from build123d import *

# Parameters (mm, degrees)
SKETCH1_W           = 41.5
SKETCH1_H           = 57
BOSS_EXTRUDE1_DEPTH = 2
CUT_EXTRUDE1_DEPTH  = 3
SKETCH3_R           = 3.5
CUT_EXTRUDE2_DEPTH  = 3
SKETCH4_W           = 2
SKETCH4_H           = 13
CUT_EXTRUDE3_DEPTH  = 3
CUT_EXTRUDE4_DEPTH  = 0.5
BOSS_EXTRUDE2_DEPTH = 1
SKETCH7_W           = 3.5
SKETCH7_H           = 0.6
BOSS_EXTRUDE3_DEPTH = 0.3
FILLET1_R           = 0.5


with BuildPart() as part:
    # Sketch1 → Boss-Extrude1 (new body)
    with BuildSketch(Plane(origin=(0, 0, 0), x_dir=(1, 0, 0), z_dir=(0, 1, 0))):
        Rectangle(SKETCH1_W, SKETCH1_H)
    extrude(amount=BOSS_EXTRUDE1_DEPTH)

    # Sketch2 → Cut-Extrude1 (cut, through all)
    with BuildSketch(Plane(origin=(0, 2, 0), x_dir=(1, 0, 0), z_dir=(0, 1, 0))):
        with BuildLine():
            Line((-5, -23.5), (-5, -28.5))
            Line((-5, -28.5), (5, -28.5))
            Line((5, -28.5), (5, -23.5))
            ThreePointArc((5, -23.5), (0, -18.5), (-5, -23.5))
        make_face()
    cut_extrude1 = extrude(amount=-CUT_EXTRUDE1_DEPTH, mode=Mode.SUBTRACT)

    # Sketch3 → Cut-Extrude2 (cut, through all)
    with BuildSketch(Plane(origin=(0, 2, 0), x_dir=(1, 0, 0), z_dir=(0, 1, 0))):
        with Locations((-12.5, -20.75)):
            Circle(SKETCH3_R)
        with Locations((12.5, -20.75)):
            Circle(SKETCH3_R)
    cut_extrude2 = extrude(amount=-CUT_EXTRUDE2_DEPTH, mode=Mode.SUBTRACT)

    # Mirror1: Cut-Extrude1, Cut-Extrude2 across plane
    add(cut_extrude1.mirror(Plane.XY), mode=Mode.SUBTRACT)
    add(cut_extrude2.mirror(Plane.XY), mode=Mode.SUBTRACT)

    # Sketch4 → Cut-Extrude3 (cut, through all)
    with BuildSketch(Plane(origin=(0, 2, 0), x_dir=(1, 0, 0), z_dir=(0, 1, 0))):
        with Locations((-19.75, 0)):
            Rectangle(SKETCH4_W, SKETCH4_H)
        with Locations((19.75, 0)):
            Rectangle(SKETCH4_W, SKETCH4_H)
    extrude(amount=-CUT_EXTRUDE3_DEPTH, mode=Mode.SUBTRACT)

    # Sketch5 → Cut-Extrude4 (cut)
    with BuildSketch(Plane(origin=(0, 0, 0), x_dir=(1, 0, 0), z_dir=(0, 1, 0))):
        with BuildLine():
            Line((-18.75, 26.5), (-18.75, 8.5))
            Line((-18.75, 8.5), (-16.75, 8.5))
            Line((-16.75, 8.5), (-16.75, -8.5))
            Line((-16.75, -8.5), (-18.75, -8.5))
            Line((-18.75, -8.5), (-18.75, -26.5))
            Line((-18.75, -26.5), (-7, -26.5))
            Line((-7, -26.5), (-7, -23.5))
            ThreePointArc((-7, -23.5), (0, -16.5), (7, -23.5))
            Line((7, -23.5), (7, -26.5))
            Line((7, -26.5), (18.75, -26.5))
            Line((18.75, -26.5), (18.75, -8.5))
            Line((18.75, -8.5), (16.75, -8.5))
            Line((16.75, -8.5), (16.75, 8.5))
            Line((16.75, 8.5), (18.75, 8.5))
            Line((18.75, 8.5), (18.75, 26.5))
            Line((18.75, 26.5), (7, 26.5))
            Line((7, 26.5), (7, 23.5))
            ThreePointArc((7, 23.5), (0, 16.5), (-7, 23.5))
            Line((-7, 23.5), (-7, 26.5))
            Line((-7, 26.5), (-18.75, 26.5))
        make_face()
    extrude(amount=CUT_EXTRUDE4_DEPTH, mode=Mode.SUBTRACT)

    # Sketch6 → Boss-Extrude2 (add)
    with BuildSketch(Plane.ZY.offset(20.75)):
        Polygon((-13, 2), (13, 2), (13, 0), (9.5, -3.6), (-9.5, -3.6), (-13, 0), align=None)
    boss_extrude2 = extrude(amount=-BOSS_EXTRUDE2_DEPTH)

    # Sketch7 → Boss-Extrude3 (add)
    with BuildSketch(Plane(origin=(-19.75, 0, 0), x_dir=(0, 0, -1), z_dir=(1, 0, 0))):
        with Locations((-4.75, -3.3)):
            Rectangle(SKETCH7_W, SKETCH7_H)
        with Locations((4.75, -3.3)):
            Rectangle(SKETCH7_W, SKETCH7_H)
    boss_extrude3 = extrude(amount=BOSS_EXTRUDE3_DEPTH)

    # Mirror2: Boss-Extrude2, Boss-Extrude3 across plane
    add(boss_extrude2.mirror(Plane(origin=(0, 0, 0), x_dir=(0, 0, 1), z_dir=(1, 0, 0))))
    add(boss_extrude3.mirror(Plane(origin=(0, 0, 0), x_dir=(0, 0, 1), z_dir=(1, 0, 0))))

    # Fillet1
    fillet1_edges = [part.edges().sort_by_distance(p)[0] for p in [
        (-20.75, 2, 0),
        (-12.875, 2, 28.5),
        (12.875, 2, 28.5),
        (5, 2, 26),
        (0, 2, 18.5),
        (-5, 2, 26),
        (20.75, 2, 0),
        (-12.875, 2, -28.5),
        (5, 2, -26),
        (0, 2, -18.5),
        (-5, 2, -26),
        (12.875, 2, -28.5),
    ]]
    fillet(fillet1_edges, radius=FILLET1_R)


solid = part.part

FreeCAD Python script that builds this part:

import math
import FreeCAD as App
import Part
import Sketcher
from FreeCAD import Vector


def edges_at(feature, points):
    """Names of the edges that pass closest to the given points."""
    edges = feature.Shape.Edges
    near = lambda p: min(range(len(edges)), key=lambda i: edges[i].distToShape(Part.Vertex(*p))[0])
    return sorted({f"Edge{near(p) + 1}" for p in points})

doc = App.newDocument("Part")
params = doc.addObject("Spreadsheet::Sheet", "Params")
for row, (alias, value) in enumerate([
    ("sketch1_height", "57 mm"),
    ("sketch1_width", "41.5 mm"),
    ("pad1_length", "2 mm"),
    ("sketch2_radius", "5 mm"),
    ("sketch2_height", "5 mm"),
    ("sketch3_diameter", "7 mm"),
    ("sketch4_width", "2 mm"),
    ("sketch4_height", "13 mm"),
    ("sketch5_radius", "7 mm"),
    ("sketch5_width", "2 mm"),
    ("sketch5_height", "18 mm"),
    ("sketch5_height2", "17 mm"),
    ("sketch5_height3", "3 mm"),
    ("pocket4_length", "0.5 mm"),
    ("sketch6_width", "2 mm"),
    ("sketch6_height", "26 mm"),
    ("sketch6_height2", "19 mm"),
    ("pad2_length", "1 mm"),
    ("sketch7_width", "0.6 mm"),
    ("sketch7_height", "3.5 mm"),
    ("pad3_length", "0.3 mm"),
    ("fillet_radius", "0.5 mm"),
], start=1):
    params.set(f"A{row}", alias)
    params.set(f"B{row}", "=" + value)
    params.setAlias(f"B{row}", alias)

body = doc.addObject("PartDesign::Body", "Body")

# Sketch on XZ plane
sketch1 = doc.addObject("Sketcher::SketchObject", "Sketch")
body.addObject(sketch1)
sketch1.AttachmentSupport = (doc.XZ_Plane, [""])
sketch1.MapMode = "FlatFace"
sketch1.addGeometry(Part.LineSegment(Vector(-21, -28, 0), Vector(-21, 28, 0)), False)
sketch1.addGeometry(Part.LineSegment(Vector(-21, 28, 0), Vector(21, 28, 0)), False)
sketch1.addGeometry(Part.LineSegment(Vector(21, 28, 0), Vector(21, -28, 0)), False)
sketch1.addGeometry(Part.LineSegment(Vector(21, -28, 0), Vector(-21, -28, 0)), False)
sketch1.addConstraint(Sketcher.Constraint("Coincident", 0, 2, 1, 1))
sketch1.addConstraint(Sketcher.Constraint("Coincident", 1, 2, 2, 1))
sketch1.addConstraint(Sketcher.Constraint("Coincident", 2, 2, 3, 1))
sketch1.addConstraint(Sketcher.Constraint("Coincident", 3, 2, 0, 1))
sketch1.addConstraint(Sketcher.Constraint("Vertical", 0))
sketch1.addConstraint(Sketcher.Constraint("Horizontal", 1))
sketch1.addConstraint(Sketcher.Constraint("Vertical", 2))
sketch1.addConstraint(Sketcher.Constraint("Horizontal", 3))
sketch1.addConstraint(Sketcher.Constraint("Symmetric", 0, 2, 2, 2, -1, 1))
sketch1.addConstraint(Sketcher.Constraint("DistanceY", 0, 1, 0, 2, 57.0))
sketch1.addConstraint(Sketcher.Constraint("DistanceX", 1, 1, 1, 2, 41.5))
sketch1.setExpression("Constraints[9]", "Params.sketch1_height")
sketch1.setExpression("Constraints[10]", "Params.sketch1_width")
pad1 = doc.addObject("PartDesign::Pad", "Pad")
body.addObject(pad1)
pad1.Profile = sketch1
pad1.setExpression("Length", "Params.pad1_length")
pad1.Reversed = True

# Sketch on XZ plane
sketch2 = doc.addObject("Sketcher::SketchObject", "Sketch001")
body.addObject(sketch2)
sketch2.AttachmentSupport = (doc.XZ_Plane, [""])
sketch2.MapMode = "FlatFace"
sketch2.AttachmentOffset = App.Placement(Vector(0, 0, -2), App.Rotation())
sketch2.addGeometry(Part.LineSegment(Vector(-5, 24, 0), Vector(-5, 28, 0)), False)
sketch2.addGeometry(Part.LineSegment(Vector(-5, 28, 0), Vector(5, 28, 0)), False)
sketch2.addGeometry(Part.LineSegment(Vector(5, 28, 0), Vector(5, 24, 0)), False)
sketch2.addGeometry(Part.ArcOfCircle(Part.Circle(Vector(0, 24, 0), Vector(0, 0, 1), 5), math.radians(180), math.radians(360)), False)
sketch2.addConstraint(Sketcher.Constraint("Coincident", 0, 2, 1, 1))
sketch2.addConstraint(Sketcher.Constraint("Coincident", 1, 2, 2, 1))
sketch2.addConstraint(Sketcher.Constraint("Tangent", 2, 2, 3, 2))
sketch2.addConstraint(Sketcher.Constraint("Tangent", 3, 1, 0, 1))
sketch2.addConstraint(Sketcher.Constraint("Vertical", 0))
sketch2.addConstraint(Sketcher.Constraint("Horizontal", 1))
sketch2.addConstraint(Sketcher.Constraint("Vertical", 2))
sketch2.addConstraint(Sketcher.Constraint("PointOnObject", 3, 3, -2))
sketch2.addConstraint(Sketcher.Constraint("Radius", 3, 5.0))
sketch2.addConstraint(Sketcher.Constraint("DistanceY", 0, 1, 0, 2, 5.0))
sketch2.addConstraint(Sketcher.Constraint("DistanceY", -1, 1, 3, 3, 23.5))
sketch2.setExpression("Constraints[8]", "Params.sketch2_radius")
sketch2.setExpression("Constraints[9]", "Params.sketch2_height")
pocket1 = doc.addObject("PartDesign::Pocket", "Pocket")
body.addObject(pocket1)
pocket1.Profile = sketch2
pocket1.Type = "ThroughAll"
pocket1.Reversed = True

# Sketch on XZ plane
sketch3 = doc.addObject("Sketcher::SketchObject", "Sketch002")
body.addObject(sketch3)
sketch3.AttachmentSupport = (doc.XZ_Plane, [""])
sketch3.MapMode = "FlatFace"
sketch3.AttachmentOffset = App.Placement(Vector(0, 0, -2), App.Rotation())
sketch3.addGeometry(Part.Circle(Vector(-12.5, 20.8, 0), Vector(0, 0, 1), 3.5), False)
sketch3.addGeometry(Part.Circle(Vector(12.5, 20.8, 0), Vector(0, 0, 1), 3.5), False)
sketch3.addConstraint(Sketcher.Constraint("Equal", 0, 1))
sketch3.addConstraint(Sketcher.Constraint("Symmetric", 0, 3, 1, 3, -2))
sketch3.addConstraint(Sketcher.Constraint("Diameter", 0, 7.0))
sketch3.addConstraint(Sketcher.Constraint("DistanceX", 0, 3, 1, 3, 25.0))
sketch3.addConstraint(Sketcher.Constraint("DistanceY", -1, 1, 0, 3, 20.75))
sketch3.setExpression("Constraints[2]", "Params.sketch3_diameter")
pocket2 = doc.addObject("PartDesign::Pocket", "Pocket001")
body.addObject(pocket2)
pocket2.Profile = sketch3
pocket2.Type = "ThroughAll"
pocket2.Reversed = True
doc.recompute()

mirrored = doc.addObject("PartDesign::Mirrored", "Mirrored")
body.addObject(mirrored)
mirrored.Originals = [pocket1, pocket2]
mirrored.MirrorPlane = (doc.XY_Plane, [""])
body.Tip = mirrored

# Sketch on XZ plane
sketch4 = doc.addObject("Sketcher::SketchObject", "Sketch003")
body.addObject(sketch4)
sketch4.AttachmentSupport = (doc.XZ_Plane, [""])
sketch4.MapMode = "FlatFace"
sketch4.AttachmentOffset = App.Placement(Vector(0, 0, -2), App.Rotation())
sketch4.addGeometry(Part.LineSegment(Vector(-20.8, -6.5, 0), Vector(-20.8, 6.5, 0)), False)
sketch4.addGeometry(Part.LineSegment(Vector(-20.8, 6.5, 0), Vector(-18.8, 6.5, 0)), False)
sketch4.addGeometry(Part.LineSegment(Vector(-18.8, 6.5, 0), Vector(-18.8, -6.5, 0)), False)
sketch4.addGeometry(Part.LineSegment(Vector(-18.8, -6.5, 0), Vector(-20.8, -6.5, 0)), False)
sketch4.addGeometry(Part.LineSegment(Vector(18.8, -6.5, 0), Vector(18.8, 6.5, 0)), False)
sketch4.addGeometry(Part.LineSegment(Vector(18.8, 6.5, 0), Vector(20.8, 6.5, 0)), False)
sketch4.addGeometry(Part.LineSegment(Vector(20.8, 6.5, 0), Vector(20.8, -6.5, 0)), False)
sketch4.addGeometry(Part.LineSegment(Vector(20.8, -6.5, 0), Vector(18.8, -6.5, 0)), False)
sketch4.addConstraint(Sketcher.Constraint("Coincident", 0, 2, 1, 1))
sketch4.addConstraint(Sketcher.Constraint("Coincident", 1, 2, 2, 1))
sketch4.addConstraint(Sketcher.Constraint("Coincident", 2, 2, 3, 1))
sketch4.addConstraint(Sketcher.Constraint("Coincident", 3, 2, 0, 1))
sketch4.addConstraint(Sketcher.Constraint("Coincident", 4, 2, 5, 1))
sketch4.addConstraint(Sketcher.Constraint("Coincident", 5, 2, 6, 1))
sketch4.addConstraint(Sketcher.Constraint("Coincident", 6, 2, 7, 1))
sketch4.addConstraint(Sketcher.Constraint("Coincident", 7, 2, 4, 1))
sketch4.addConstraint(Sketcher.Constraint("Vertical", 0))
sketch4.addConstraint(Sketcher.Constraint("Horizontal", 1))
sketch4.addConstraint(Sketcher.Constraint("Vertical", 2))
sketch4.addConstraint(Sketcher.Constraint("Horizontal", 3))
sketch4.addConstraint(Sketcher.Constraint("Vertical", 4))
sketch4.addConstraint(Sketcher.Constraint("Horizontal", 5))
sketch4.addConstraint(Sketcher.Constraint("Vertical", 6))
sketch4.addConstraint(Sketcher.Constraint("Horizontal", 7))
sketch4.addConstraint(Sketcher.Constraint("Symmetric", 2, 2, 4, 2, -1, 1))
sketch4.addConstraint(Sketcher.Constraint("Symmetric", 0, 2, 6, 2, -1, 1))
sketch4.addConstraint(Sketcher.Constraint("Horizontal", 1, 2, 4, 2))
sketch4.addConstraint(Sketcher.Constraint("DistanceX", 1, 1, 1, 2, 2.0))
sketch4.addConstraint(Sketcher.Constraint("DistanceY", 0, 1, 0, 2, 13.0))
sketch4.addConstraint(Sketcher.Constraint("DistanceX", 1, 2, 4, 2, 37.5))
sketch4.setExpression("Constraints[19]", "Params.sketch4_width")
sketch4.setExpression("Constraints[20]", "Params.sketch4_height")
pocket3 = doc.addObject("PartDesign::Pocket", "Pocket002")
body.addObject(pocket3)
pocket3.Profile = sketch4
pocket3.Type = "ThroughAll"
pocket3.Reversed = True

# Sketch on XZ plane
sketch5 = doc.addObject("Sketcher::SketchObject", "Sketch004")
body.addObject(sketch5)
sketch5.AttachmentSupport = (doc.XZ_Plane, [""])
sketch5.MapMode = "FlatFace"
sketch5.addGeometry(Part.LineSegment(Vector(-18.8, -26.5, 0), Vector(-18.8, -8.5, 0)), False)
sketch5.addGeometry(Part.LineSegment(Vector(-18.8, -8.5, 0), Vector(-16.8, -8.5, 0)), False)
sketch5.addGeometry(Part.LineSegment(Vector(-16.8, -8.5, 0), Vector(-16.8, 8.5, 0)), False)
sketch5.addGeometry(Part.LineSegment(Vector(-16.8, 8.5, 0), Vector(-18.8, 8.5, 0)), False)
sketch5.addGeometry(Part.LineSegment(Vector(-18.8, 8.5, 0), Vector(-18.8, 26.5, 0)), False)
sketch5.addGeometry(Part.LineSegment(Vector(-18.8, 26.5, 0), Vector(-7, 26.5, 0)), False)
sketch5.addGeometry(Part.LineSegment(Vector(-7, 26.5, 0), Vector(-7, 23.5, 0)), False)
sketch5.addGeometry(Part.ArcOfCircle(Part.Circle(Vector(0, 23.5, 0), Vector(0, 0, 1), 7), math.radians(180), math.radians(360)), False)
sketch5.addGeometry(Part.LineSegment(Vector(7, 23.5, 0), Vector(7, 26.5, 0)), False)
sketch5.addGeometry(Part.LineSegment(Vector(7, 26.5, 0), Vector(18.8, 26.5, 0)), False)
sketch5.addGeometry(Part.LineSegment(Vector(18.8, 26.5, 0), Vector(18.8, 8.5, 0)), False)
sketch5.addGeometry(Part.LineSegment(Vector(18.8, 8.5, 0), Vector(16.8, 8.5, 0)), False)
sketch5.addGeometry(Part.LineSegment(Vector(16.8, 8.5, 0), Vector(16.8, -8.5, 0)), False)
sketch5.addGeometry(Part.LineSegment(Vector(16.8, -8.5, 0), Vector(18.8, -8.5, 0)), False)
sketch5.addGeometry(Part.LineSegment(Vector(18.8, -8.5, 0), Vector(18.8, -26.5, 0)), False)
sketch5.addGeometry(Part.LineSegment(Vector(18.8, -26.5, 0), Vector(7, -26.5, 0)), False)
sketch5.addGeometry(Part.LineSegment(Vector(7, -26.5, 0), Vector(7, -23.5, 0)), False)
sketch5.addGeometry(Part.ArcOfCircle(Part.Circle(Vector(0, -23.5, 0), Vector(0, 0, 1), 7), math.radians(0), math.radians(180)), False)
sketch5.addGeometry(Part.LineSegment(Vector(-7, -23.5, 0), Vector(-7, -26.5, 0)), False)
sketch5.addGeometry(Part.LineSegment(Vector(-7, -26.5, 0), Vector(-18.8, -26.5, 0)), False)
sketch5.addConstraint(Sketcher.Constraint("Coincident", 0, 2, 1, 1))
sketch5.addConstraint(Sketcher.Constraint("Coincident", 1, 2, 2, 1))
sketch5.addConstraint(Sketcher.Constraint("Coincident", 2, 2, 3, 1))
sketch5.addConstraint(Sketcher.Constraint("Coincident", 3, 2, 4, 1))
sketch5.addConstraint(Sketcher.Constraint("Coincident", 4, 2, 5, 1))
sketch5.addConstraint(Sketcher.Constraint("Coincident", 5, 2, 6, 1))
sketch5.addConstraint(Sketcher.Constraint("Tangent", 6, 2, 7, 1))
sketch5.addConstraint(Sketcher.Constraint("Tangent", 7, 2, 8, 1))
sketch5.addConstraint(Sketcher.Constraint("Coincident", 8, 2, 9, 1))
sketch5.addConstraint(Sketcher.Constraint("Coincident", 9, 2, 10, 1))
sketch5.addConstraint(Sketcher.Constraint("Coincident", 10, 2, 11, 1))
sketch5.addConstraint(Sketcher.Constraint("Coincident", 11, 2, 12, 1))
sketch5.addConstraint(Sketcher.Constraint("Coincident", 12, 2, 13, 1))
sketch5.addConstraint(Sketcher.Constraint("Coincident", 13, 2, 14, 1))
sketch5.addConstraint(Sketcher.Constraint("Coincident", 14, 2, 15, 1))
sketch5.addConstraint(Sketcher.Constraint("Coincident", 15, 2, 16, 1))
sketch5.addConstraint(Sketcher.Constraint("Tangent", 16, 2, 17, 1))
sketch5.addConstraint(Sketcher.Constraint("Tangent", 17, 2, 18, 1))
sketch5.addConstraint(Sketcher.Constraint("Coincident", 18, 2, 19, 1))
sketch5.addConstraint(Sketcher.Constraint("Coincident", 19, 2, 0, 1))
sketch5.addConstraint(Sketcher.Constraint("Vertical", 0))
sketch5.addConstraint(Sketcher.Constraint("Horizontal", 1))
sketch5.addConstraint(Sketcher.Constraint("Vertical", 2))
sketch5.addConstraint(Sketcher.Constraint("Horizontal", 3))
sketch5.addConstraint(Sketcher.Constraint("Vertical", 4))
sketch5.addConstraint(Sketcher.Constraint("Horizontal", 5))
sketch5.addConstraint(Sketcher.Constraint("Vertical", 6))
sketch5.addConstraint(Sketcher.Constraint("Vertical", 8))
sketch5.addConstraint(Sketcher.Constraint("Horizontal", 9))
sketch5.addConstraint(Sketcher.Constraint("Vertical", 10))
sketch5.addConstraint(Sketcher.Constraint("Horizontal", 11))
sketch5.addConstraint(Sketcher.Constraint("Vertical", 12))
sketch5.addConstraint(Sketcher.Constraint("Horizontal", 13))
sketch5.addConstraint(Sketcher.Constraint("Vertical", 14))
sketch5.addConstraint(Sketcher.Constraint("Horizontal", 15))
sketch5.addConstraint(Sketcher.Constraint("Vertical", 16))
sketch5.addConstraint(Sketcher.Constraint("Vertical", 18))
sketch5.addConstraint(Sketcher.Constraint("Horizontal", 19))
sketch5.addConstraint(Sketcher.Constraint("Equal", 7, 17))
sketch5.addConstraint(Sketcher.Constraint("Symmetric", 7, 3, 17, 3, -1, 1))
sketch5.addConstraint(Sketcher.Constraint("Symmetric", 0, 2, 10, 2, -1, 1))
sketch5.addConstraint(Sketcher.Constraint("Symmetric", 2, 2, 12, 2, -1, 1))
sketch5.addConstraint(Sketcher.Constraint("Symmetric", 4, 2, 14, 2, -1, 1))
sketch5.addConstraint(Sketcher.Constraint("Symmetric", 5, 2, 8, 2, -2))
sketch5.addConstraint(Sketcher.Constraint("Symmetric", 3, 2, 10, 2, -2))
sketch5.addConstraint(Sketcher.Constraint("Horizontal", 15, 2, 18, 2))
sketch5.addConstraint(Sketcher.Constraint("Radius", 7, 7.0))
sketch5.addConstraint(Sketcher.Constraint("DistanceX", 1, 1, 1, 2, 2.0))
sketch5.addConstraint(Sketcher.Constraint("DistanceY", 0, 1, 0, 2, 18.0))
sketch5.addConstraint(Sketcher.Constraint("DistanceY", 2, 1, 2, 2, 17.0))
sketch5.addConstraint(Sketcher.Constraint("DistanceY", 6, 2, 6, 1, 3.0))
sketch5.addConstraint(Sketcher.Constraint("DistanceX", 5, 1, 5, 2, 11.75))
sketch5.setExpression("Constraints[46]", "Params.sketch5_radius")
sketch5.setExpression("Constraints[47]", "Params.sketch5_width")
sketch5.setExpression("Constraints[48]", "Params.sketch5_height")
sketch5.setExpression("Constraints[49]", "Params.sketch5_height2")
sketch5.setExpression("Constraints[50]", "Params.sketch5_height3")
pocket4 = doc.addObject("PartDesign::Pocket", "Pocket003")
body.addObject(pocket4)
pocket4.Profile = sketch5
pocket4.setExpression("Length", "Params.pocket4_length")

# Sketch on YZ plane
sketch6 = doc.addObject("Sketcher::SketchObject", "Sketch005")
body.addObject(sketch6)
sketch6.AttachmentSupport = (doc.YZ_Plane, [""])
sketch6.MapMode = "FlatFace"
sketch6.AttachmentOffset = App.Placement(Vector(0, 0, -20.75), App.Rotation())
sketch6.addGeometry(Part.LineSegment(Vector(2, 13, 0), Vector(2, -13, 0)), False)
sketch6.addGeometry(Part.LineSegment(Vector(2, -13, 0), Vector(0, -13, 0)), False)
sketch6.addGeometry(Part.LineSegment(Vector(0, -13, 0), Vector(-3.6, -9.5, 0)), False)
sketch6.addGeometry(Part.LineSegment(Vector(-3.6, -9.5, 0), Vector(-3.6, 9.5, 0)), False)
sketch6.addGeometry(Part.LineSegment(Vector(-3.6, 9.5, 0), Vector(0, 13, 0)), False)
sketch6.addGeometry(Part.LineSegment(Vector(0, 13, 0), Vector(2, 13, 0)), False)
sketch6.addConstraint(Sketcher.Constraint("Coincident", 0, 2, 1, 1))
sketch6.addConstraint(Sketcher.Constraint("Coincident", 1, 2, 2, 1))
sketch6.addConstraint(Sketcher.Constraint("Coincident", 2, 2, 3, 1))
sketch6.addConstraint(Sketcher.Constraint("Coincident", 3, 2, 4, 1))
sketch6.addConstraint(Sketcher.Constraint("Coincident", 4, 2, 5, 1))
sketch6.addConstraint(Sketcher.Constraint("Coincident", 5, 2, 0, 1))
sketch6.addConstraint(Sketcher.Constraint("Vertical", 0))
sketch6.addConstraint(Sketcher.Constraint("Horizontal", 1))
sketch6.addConstraint(Sketcher.Constraint("Vertical", 3))
sketch6.addConstraint(Sketcher.Constraint("Horizontal", 5))
sketch6.addConstraint(Sketcher.Constraint("Symmetric", 1, 2, 4, 2, -1, 1))
sketch6.addConstraint(Sketcher.Constraint("PointOnObject", 1, 2, -2))
sketch6.addConstraint(Sketcher.Constraint("Equal", 2, 4))
sketch6.addConstraint(Sketcher.Constraint("DistanceX", 1, 2, 1, 1, 2.0))
sketch6.addConstraint(Sketcher.Constraint("DistanceY", 0, 2, 0, 1, 26.0))
sketch6.addConstraint(Sketcher.Constraint("DistanceY", 3, 1, 3, 2, 19.0))
sketch6.addConstraint(Sketcher.Constraint("DistanceX", 2, 2, -1, 1, 3.6))
sketch6.setExpression("Constraints[13]", "Params.sketch6_width")
sketch6.setExpression("Constraints[14]", "Params.sketch6_height")
sketch6.setExpression("Constraints[15]", "Params.sketch6_height2")
pad2 = doc.addObject("PartDesign::Pad", "Pad001")
body.addObject(pad2)
pad2.Profile = sketch6
pad2.setExpression("Length", "Params.pad2_length")

# Sketch on YZ plane
sketch7 = doc.addObject("Sketcher::SketchObject", "Sketch006")
body.addObject(sketch7)
sketch7.AttachmentSupport = (doc.YZ_Plane, [""])
sketch7.MapMode = "FlatFace"
sketch7.AttachmentOffset = App.Placement(Vector(0, 0, -19.75), App.Rotation())
sketch7.addGeometry(Part.LineSegment(Vector(-3, 6.5, 0), Vector(-3.6, 6.5, 0)), False)
sketch7.addGeometry(Part.LineSegment(Vector(-3.6, 6.5, 0), Vector(-3.6, 3, 0)), False)
sketch7.addGeometry(Part.LineSegment(Vector(-3.6, 3, 0), Vector(-3, 3, 0)), False)
sketch7.addGeometry(Part.LineSegment(Vector(-3, 3, 0), Vector(-3, 6.5, 0)), False)
sketch7.addGeometry(Part.LineSegment(Vector(-3, -3, 0), Vector(-3.6, -3, 0)), False)
sketch7.addGeometry(Part.LineSegment(Vector(-3.6, -3, 0), Vector(-3.6, -6.5, 0)), False)
sketch7.addGeometry(Part.LineSegment(Vector(-3.6, -6.5, 0), Vector(-3, -6.5, 0)), False)
sketch7.addGeometry(Part.LineSegment(Vector(-3, -6.5, 0), Vector(-3, -3, 0)), False)
sketch7.addConstraint(Sketcher.Constraint("Coincident", 0, 2, 1, 1))
sketch7.addConstraint(Sketcher.Constraint("Coincident", 1, 2, 2, 1))
sketch7.addConstraint(Sketcher.Constraint("Coincident", 2, 2, 3, 1))
sketch7.addConstraint(Sketcher.Constraint("Coincident", 3, 2, 0, 1))
sketch7.addConstraint(Sketcher.Constraint("Coincident", 4, 2, 5, 1))
sketch7.addConstraint(Sketcher.Constraint("Coincident", 5, 2, 6, 1))
sketch7.addConstraint(Sketcher.Constraint("Coincident", 6, 2, 7, 1))
sketch7.addConstraint(Sketcher.Constraint("Coincident", 7, 2, 4, 1))
sketch7.addConstraint(Sketcher.Constraint("Horizontal", 0))
sketch7.addConstraint(Sketcher.Constraint("Vertical", 1))
sketch7.addConstraint(Sketcher.Constraint("Horizontal", 2))
sketch7.addConstraint(Sketcher.Constraint("Vertical", 3))
sketch7.addConstraint(Sketcher.Constraint("Horizontal", 4))
sketch7.addConstraint(Sketcher.Constraint("Vertical", 5))
sketch7.addConstraint(Sketcher.Constraint("Horizontal", 6))
sketch7.addConstraint(Sketcher.Constraint("Vertical", 7))
sketch7.addConstraint(Sketcher.Constraint("Symmetric", 1, 2, 4, 2, -1))
sketch7.addConstraint(Sketcher.Constraint("Symmetric", 3, 2, 6, 2, -1))
sketch7.addConstraint(Sketcher.Constraint("DistanceX", 0, 2, 0, 1, 0.6))
sketch7.addConstraint(Sketcher.Constraint("DistanceY", 1, 2, 1, 1, 3.5))
sketch7.addConstraint(Sketcher.Constraint("DistanceY", -1, 1, 1, 2, 3.0))
sketch7.addConstraint(Sketcher.Constraint("DistanceX", 2, 2, -1, 1, 3.0))
sketch7.setExpression("Constraints[18]", "Params.sketch7_width")
sketch7.setExpression("Constraints[19]", "Params.sketch7_height")
pad3 = doc.addObject("PartDesign::Pad", "Pad002")
body.addObject(pad3)
pad3.Profile = sketch7
pad3.setExpression("Length", "Params.pad3_length")
doc.recompute()

mirrored2 = doc.addObject("PartDesign::Mirrored", "Mirrored001")
body.addObject(mirrored2)
mirrored2.Originals = [pad2, pad3]
mirrored2.MirrorPlane = (doc.YZ_Plane, [""])
body.Tip = mirrored2
doc.recompute()

fillet = doc.addObject("PartDesign::Fillet", "Fillet")
body.addObject(fillet)
fillet.Base = (mirrored2, edges_at(mirrored2, [
    (-20.75, 2, 0),
    (-12.875, 2, 28.5),
    (12.875, 2, 28.5),
    (5, 2, 26),
    (0, 2, 18.5),
    (-5, 2, 26),
    (20.75, 2, 0),
    (-12.875, 2, -28.5),
    (5, 2, -26),
    (0, 2, -18.5),
    (-5, 2, -26),
    (12.875, 2, -28.5),
]))
fillet.setExpression("Radius", "Params.fillet_radius")

doc.recompute()
